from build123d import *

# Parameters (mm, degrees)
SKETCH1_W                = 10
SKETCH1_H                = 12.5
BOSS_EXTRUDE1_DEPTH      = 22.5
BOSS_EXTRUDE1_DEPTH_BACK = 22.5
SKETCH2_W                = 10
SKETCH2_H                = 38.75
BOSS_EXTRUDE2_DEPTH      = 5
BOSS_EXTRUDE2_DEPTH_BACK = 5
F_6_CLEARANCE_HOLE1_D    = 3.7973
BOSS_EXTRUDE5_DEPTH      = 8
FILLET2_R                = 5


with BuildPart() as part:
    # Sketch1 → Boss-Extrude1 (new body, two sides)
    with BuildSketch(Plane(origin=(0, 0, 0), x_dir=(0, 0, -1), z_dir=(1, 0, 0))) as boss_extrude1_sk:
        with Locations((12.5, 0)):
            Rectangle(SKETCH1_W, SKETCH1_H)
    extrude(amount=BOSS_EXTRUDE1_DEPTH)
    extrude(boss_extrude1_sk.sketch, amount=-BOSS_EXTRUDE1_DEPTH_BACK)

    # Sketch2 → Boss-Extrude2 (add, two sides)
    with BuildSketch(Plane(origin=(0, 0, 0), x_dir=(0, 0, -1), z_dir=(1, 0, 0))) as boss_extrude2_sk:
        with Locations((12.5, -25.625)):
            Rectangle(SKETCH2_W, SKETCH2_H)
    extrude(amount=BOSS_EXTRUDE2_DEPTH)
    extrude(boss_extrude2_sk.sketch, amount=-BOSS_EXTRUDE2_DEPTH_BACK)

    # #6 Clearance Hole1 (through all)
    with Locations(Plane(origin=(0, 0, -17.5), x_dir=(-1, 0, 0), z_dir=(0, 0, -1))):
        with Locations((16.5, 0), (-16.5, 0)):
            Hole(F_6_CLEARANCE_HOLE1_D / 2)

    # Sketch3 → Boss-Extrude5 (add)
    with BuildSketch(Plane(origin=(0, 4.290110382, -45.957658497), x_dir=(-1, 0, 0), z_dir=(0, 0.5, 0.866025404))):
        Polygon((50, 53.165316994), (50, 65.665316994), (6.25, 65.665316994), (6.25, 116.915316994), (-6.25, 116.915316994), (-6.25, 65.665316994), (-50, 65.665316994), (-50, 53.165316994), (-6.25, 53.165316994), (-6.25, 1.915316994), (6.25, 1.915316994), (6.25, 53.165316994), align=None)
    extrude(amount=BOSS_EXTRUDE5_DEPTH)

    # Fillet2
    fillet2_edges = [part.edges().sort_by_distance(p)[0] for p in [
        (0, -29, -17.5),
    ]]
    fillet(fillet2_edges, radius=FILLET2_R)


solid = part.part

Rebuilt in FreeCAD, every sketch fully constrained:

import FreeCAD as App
import Part
import Sketcher
Q = App.Units.Quantity


def edges_at(feature, points):
    """Names of the edges that pass closest to the given points."""
    edges = feature.Shape.Edges
    near = lambda p: min(range(len(edges)), key=lambda i: edges[i].distToShape(Part.Vertex(*p))[0])
    return sorted({f"Edge{near(p) + 1}" for p in points})

doc = App.newDocument("Part")
body = doc.addObject("PartDesign::Body", "Body")

sketch1 = body.newObject("Sketcher::SketchObject", "Sketch")
sketch1.AttachmentSupport = (doc.getObject("YZ_Plane"), [""])
sketch1.MapMode = "FlatFace"
sketch1.addGeometry([
    Part.LineSegment(App.Vector(6.25, -7.5, 0), App.Vector(-6.25, -7.5, 0)),
    Part.LineSegment(App.Vector(-6.25, -7.5, 0), App.Vector(-6.25, -17.5, 0)),
    Part.LineSegment(App.Vector(-6.25, -17.5, 0), App.Vector(6.25, -17.5, 0)),
    Part.LineSegment(App.Vector(6.25, -17.5, 0), App.Vector(6.25, -7.5, 0)),
], False)
sketch1.addConstraint([
    Sketcher.Constraint("Coincident", 0, 2, 1, 1),
    Sketcher.Constraint("Coincident", 1, 2, 2, 1),
    Sketcher.Constraint("Coincident", 2, 2, 3, 1),
    Sketcher.Constraint("Coincident", 3, 2, 0, 1),
    Sketcher.Constraint("Horizontal", 0),
    Sketcher.Constraint("Vertical", 1),
    Sketcher.Constraint("Horizontal", 2),
    Sketcher.Constraint("Vertical", 3),
    Sketcher.Constraint("DistanceY", 1, 2, 1, 1, Q("10 mm")),
    Sketcher.Constraint("DistanceX", 0, 2, 0, 1, Q("12.5 mm")),
    Sketcher.Constraint("DistanceY", 0, 2, -1, 1, Q("7.5 mm")),
    Sketcher.Constraint("DistanceX", 0, 2, -1, 1, Q("6.25 mm")),
])
pad1 = body.newObject("PartDesign::Pad", "Pad")
pad1.Profile = sketch1
pad1.Type = "TwoLengths"
pad1.Length = 22.5
pad1.Length2 = 22.5

sketch2 = body.newObject("Sketcher::SketchObject", "Sketch001")
sketch2.AttachmentSupport = (doc.getObject("YZ_Plane"), [""])
sketch2.MapMode = "FlatFace"
sketch2.addGeometry([
    Part.LineSegment(App.Vector(-6.25, -7.5, 0), App.Vector(-45, -7.5, 0)),
    Part.LineSegment(App.Vector(-45, -7.5, 0), App.Vector(-45, -17.5, 0)),
    Part.LineSegment(App.Vector(-45, -17.5, 0), App.Vector(-6.25, -17.5, 0)),
    Part.LineSegment(App.Vector(-6.25, -17.5, 0), App.Vector(-6.25, -7.5, 0)),
], False)
sketch2.addConstraint([
    Sketcher.Constraint("Coincident", 0, 2, 1, 1),
    Sketcher.Constraint("Coincident", 1, 2, 2, 1),
    Sketcher.Constraint("Coincident", 2, 2, 3, 1),
    Sketcher.Constraint("Coincident", 3, 2, 0, 1),
    Sketcher.Constraint("Horizontal", 0),
    Sketcher.Constraint("Vertical", 1),
    Sketcher.Constraint("Horizontal", 2),
    Sketcher.Constraint("Vertical", 3),
    Sketcher.Constraint("DistanceY", 1, 2, 1, 1, Q("10 mm")),
    Sketcher.Constraint("DistanceX", 0, 2, -1, 1, Q("45 mm")),
    Sketcher.Constraint("DistanceX", 0, 2, 0, 1, Q("38.75 mm")),
    Sketcher.Constraint("DistanceY", 0, 2, -1, 1, Q("7.5 mm")),
])
pad2 = body.newObject("PartDesign::Pad", "Pad001")
pad2.Profile = sketch2
pad2.Type = "TwoLengths"
pad2.Length = 5
pad2.Length2 = 5

sketch3 = body.newObject("Sketcher::SketchObject", "Sketch002")
sketch3.AttachmentSupport = (doc.getObject("XY_Plane"), [""])
sketch3.MapMode = "FlatFace"
sketch3.AttachmentOffset = App.Placement(App.Vector(0, 0, -17.5), App.Rotation())
sketch3.addGeometry([
    Part.Circle(App.Vector(-16.5, 0, 0), App.Vector(0, 0, 1), 1.89865),
    Part.Circle(App.Vector(16.5, 0, 0), App.Vector(0, 0, 1), 1.89865),
], False)
sketch3.addConstraint([
    Sketcher.Constraint("Equal", 0, 1),
    Sketcher.Constraint("Symmetric", 0, 3, 1, 3, -1, 1),
    Sketcher.Constraint("PointOnObject", 0, 3, -1),
    Sketcher.Constraint("DistanceX", 0, 3, 1, 3, Q("33 mm")),
    Sketcher.Constraint("Diameter", 0, Q("3.7973 mm")),
])
doc.recompute()
hole = body.newObject("PartDesign::Hole", "Hole")
hole.Profile = sketch3
hole.ThreadType = "None"
hole.Diameter = 3.7973
hole.DepthType = "ThroughAll"
hole.Reversed = True

sketch4 = body.newObject("Sketcher::SketchObject", "Sketch003")
sketch4.Placement = App.Placement(App.Vector(0, 4.29011, -45.957658), App.Rotation(App.Vector(-1, 0, 0), App.Vector(0, -0.866025404, 0.5), App.Vector(0, 0.5, 0.866025404), "ZXY"))
sketch4.addGeometry([
    Part.LineSegment(App.Vector(50, 53.165317, 0), App.Vector(50, 65.665317, 0)),
    Part.LineSegment(App.Vector(50, 65.665317, 0), App.Vector(6.25, 65.665317, 0)),
    Part.LineSegment(App.Vector(6.25, 65.665317, 0), App.Vector(6.25, 116.915317, 0)),
    Part.LineSegment(App.Vector(6.25, 116.915317, 0), App.Vector(-6.25, 116.915317, 0)),
    Part.LineSegment(App.Vector(-6.25, 116.915317, 0), App.Vector(-6.25, 65.665317, 0)),
    Part.LineSegment(App.Vector(-6.25, 65.665317, 0), App.Vector(-50, 65.665317, 0)),
    Part.LineSegment(App.Vector(-50, 65.665317, 0), App.Vector(-50, 53.165317, 0)),
    Part.LineSegment(App.Vector(-50, 53.165317, 0), App.Vector(-6.25, 53.165317, 0)),
    Part.LineSegment(App.Vector(-6.25, 53.165317, 0), App.Vector(-6.25, 1.915317, 0)),
    Part.LineSegment(App.Vector(-6.25, 1.915317, 0), App.Vector(6.25, 1.915317, 0)),
    Part.LineSegment(App.Vector(6.25, 1.915317, 0), App.Vector(6.25, 53.165317, 0)),
    Part.LineSegment(App.Vector(6.25, 53.165317, 0), App.Vector(50, 53.165317, 0)),
], False)
sketch4.addConstraint([
    Sketcher.Constraint("Coincident", 0, 2, 1, 1),
    Sketcher.Constraint("Coincident", 1, 2, 2, 1),
    Sketcher.Constraint("Coincident", 2, 2, 3, 1),
    Sketcher.Constraint("Coincident", 3, 2, 4, 1),
    Sketcher.Constraint("Coincident", 4, 2, 5, 1),
    Sketcher.Constraint("Coincident", 5, 2, 6, 1),
    Sketcher.Constraint("Coincident", 6, 2, 7, 1),
    Sketcher.Constraint("Coincident", 7, 2, 8, 1),
    Sketcher.Constraint("Coincident", 8, 2, 9, 1),
    Sketcher.Constraint("Coincident", 9, 2, 10, 1),
    Sketcher.Constraint("Coincident", 10, 2, 11, 1),
    Sketcher.Constraint("Coincident", 11, 2, 0, 1),
    Sketcher.Constraint("Vertical", 0),
    Sketcher.Constraint("Horizontal", 1),
    Sketcher.Constraint("Vertical", 2),
    Sketcher.Constraint("Horizontal", 3),
    Sketcher.Constraint("Vertical", 4),
    Sketcher.Constraint("Horizontal", 5),
    Sketcher.Constraint("Vertical", 6),
    Sketcher.Constraint("Horizontal", 7),
    Sketcher.Constraint("Vertical", 8),
    Sketcher.Constraint("Horizontal", 9),
    Sketcher.Constraint("Vertical", 10),
    Sketcher.Constraint("Horizontal", 11),
    Sketcher.Constraint("Symmetric", 1, 2, 4, 2, -2),
    Sketcher.Constraint("Symmetric", 7, 2, 10, 2, -2),
    Sketcher.Constraint("Vertical", 4, 2, 7, 2),
    Sketcher.Constraint("Equal", 1, 5),
    Sketcher.Constraint("Equal", 9, 0),
    Sketcher.Constraint("Equal", 4, 8),
    Sketcher.Constraint("DistanceX", 3, 2, 3, 1, Q("12.5 mm")),
    Sketcher.Constraint("DistanceX", -1, 1, 0, 2, Q("50 mm")),
    Sketcher.Constraint("DistanceY", 2, 1, 2, 2, Q("51.25 mm")),
    Sketcher.Constraint("DistanceY", -1, 1, 0, 2, Q("65.665317 mm")),
])
pad3 = body.newObject("PartDesign::Pad", "Pad002")
pad3.Profile = sketch4
pad3.Length = 8
doc.recompute()

fillet = body.newObject("PartDesign::Fillet", "Fillet")
fillet.Base = (pad3, edges_at(pad3, [(0, -29, -17.5)]))
fillet.Radius = 5

doc.recompute()
